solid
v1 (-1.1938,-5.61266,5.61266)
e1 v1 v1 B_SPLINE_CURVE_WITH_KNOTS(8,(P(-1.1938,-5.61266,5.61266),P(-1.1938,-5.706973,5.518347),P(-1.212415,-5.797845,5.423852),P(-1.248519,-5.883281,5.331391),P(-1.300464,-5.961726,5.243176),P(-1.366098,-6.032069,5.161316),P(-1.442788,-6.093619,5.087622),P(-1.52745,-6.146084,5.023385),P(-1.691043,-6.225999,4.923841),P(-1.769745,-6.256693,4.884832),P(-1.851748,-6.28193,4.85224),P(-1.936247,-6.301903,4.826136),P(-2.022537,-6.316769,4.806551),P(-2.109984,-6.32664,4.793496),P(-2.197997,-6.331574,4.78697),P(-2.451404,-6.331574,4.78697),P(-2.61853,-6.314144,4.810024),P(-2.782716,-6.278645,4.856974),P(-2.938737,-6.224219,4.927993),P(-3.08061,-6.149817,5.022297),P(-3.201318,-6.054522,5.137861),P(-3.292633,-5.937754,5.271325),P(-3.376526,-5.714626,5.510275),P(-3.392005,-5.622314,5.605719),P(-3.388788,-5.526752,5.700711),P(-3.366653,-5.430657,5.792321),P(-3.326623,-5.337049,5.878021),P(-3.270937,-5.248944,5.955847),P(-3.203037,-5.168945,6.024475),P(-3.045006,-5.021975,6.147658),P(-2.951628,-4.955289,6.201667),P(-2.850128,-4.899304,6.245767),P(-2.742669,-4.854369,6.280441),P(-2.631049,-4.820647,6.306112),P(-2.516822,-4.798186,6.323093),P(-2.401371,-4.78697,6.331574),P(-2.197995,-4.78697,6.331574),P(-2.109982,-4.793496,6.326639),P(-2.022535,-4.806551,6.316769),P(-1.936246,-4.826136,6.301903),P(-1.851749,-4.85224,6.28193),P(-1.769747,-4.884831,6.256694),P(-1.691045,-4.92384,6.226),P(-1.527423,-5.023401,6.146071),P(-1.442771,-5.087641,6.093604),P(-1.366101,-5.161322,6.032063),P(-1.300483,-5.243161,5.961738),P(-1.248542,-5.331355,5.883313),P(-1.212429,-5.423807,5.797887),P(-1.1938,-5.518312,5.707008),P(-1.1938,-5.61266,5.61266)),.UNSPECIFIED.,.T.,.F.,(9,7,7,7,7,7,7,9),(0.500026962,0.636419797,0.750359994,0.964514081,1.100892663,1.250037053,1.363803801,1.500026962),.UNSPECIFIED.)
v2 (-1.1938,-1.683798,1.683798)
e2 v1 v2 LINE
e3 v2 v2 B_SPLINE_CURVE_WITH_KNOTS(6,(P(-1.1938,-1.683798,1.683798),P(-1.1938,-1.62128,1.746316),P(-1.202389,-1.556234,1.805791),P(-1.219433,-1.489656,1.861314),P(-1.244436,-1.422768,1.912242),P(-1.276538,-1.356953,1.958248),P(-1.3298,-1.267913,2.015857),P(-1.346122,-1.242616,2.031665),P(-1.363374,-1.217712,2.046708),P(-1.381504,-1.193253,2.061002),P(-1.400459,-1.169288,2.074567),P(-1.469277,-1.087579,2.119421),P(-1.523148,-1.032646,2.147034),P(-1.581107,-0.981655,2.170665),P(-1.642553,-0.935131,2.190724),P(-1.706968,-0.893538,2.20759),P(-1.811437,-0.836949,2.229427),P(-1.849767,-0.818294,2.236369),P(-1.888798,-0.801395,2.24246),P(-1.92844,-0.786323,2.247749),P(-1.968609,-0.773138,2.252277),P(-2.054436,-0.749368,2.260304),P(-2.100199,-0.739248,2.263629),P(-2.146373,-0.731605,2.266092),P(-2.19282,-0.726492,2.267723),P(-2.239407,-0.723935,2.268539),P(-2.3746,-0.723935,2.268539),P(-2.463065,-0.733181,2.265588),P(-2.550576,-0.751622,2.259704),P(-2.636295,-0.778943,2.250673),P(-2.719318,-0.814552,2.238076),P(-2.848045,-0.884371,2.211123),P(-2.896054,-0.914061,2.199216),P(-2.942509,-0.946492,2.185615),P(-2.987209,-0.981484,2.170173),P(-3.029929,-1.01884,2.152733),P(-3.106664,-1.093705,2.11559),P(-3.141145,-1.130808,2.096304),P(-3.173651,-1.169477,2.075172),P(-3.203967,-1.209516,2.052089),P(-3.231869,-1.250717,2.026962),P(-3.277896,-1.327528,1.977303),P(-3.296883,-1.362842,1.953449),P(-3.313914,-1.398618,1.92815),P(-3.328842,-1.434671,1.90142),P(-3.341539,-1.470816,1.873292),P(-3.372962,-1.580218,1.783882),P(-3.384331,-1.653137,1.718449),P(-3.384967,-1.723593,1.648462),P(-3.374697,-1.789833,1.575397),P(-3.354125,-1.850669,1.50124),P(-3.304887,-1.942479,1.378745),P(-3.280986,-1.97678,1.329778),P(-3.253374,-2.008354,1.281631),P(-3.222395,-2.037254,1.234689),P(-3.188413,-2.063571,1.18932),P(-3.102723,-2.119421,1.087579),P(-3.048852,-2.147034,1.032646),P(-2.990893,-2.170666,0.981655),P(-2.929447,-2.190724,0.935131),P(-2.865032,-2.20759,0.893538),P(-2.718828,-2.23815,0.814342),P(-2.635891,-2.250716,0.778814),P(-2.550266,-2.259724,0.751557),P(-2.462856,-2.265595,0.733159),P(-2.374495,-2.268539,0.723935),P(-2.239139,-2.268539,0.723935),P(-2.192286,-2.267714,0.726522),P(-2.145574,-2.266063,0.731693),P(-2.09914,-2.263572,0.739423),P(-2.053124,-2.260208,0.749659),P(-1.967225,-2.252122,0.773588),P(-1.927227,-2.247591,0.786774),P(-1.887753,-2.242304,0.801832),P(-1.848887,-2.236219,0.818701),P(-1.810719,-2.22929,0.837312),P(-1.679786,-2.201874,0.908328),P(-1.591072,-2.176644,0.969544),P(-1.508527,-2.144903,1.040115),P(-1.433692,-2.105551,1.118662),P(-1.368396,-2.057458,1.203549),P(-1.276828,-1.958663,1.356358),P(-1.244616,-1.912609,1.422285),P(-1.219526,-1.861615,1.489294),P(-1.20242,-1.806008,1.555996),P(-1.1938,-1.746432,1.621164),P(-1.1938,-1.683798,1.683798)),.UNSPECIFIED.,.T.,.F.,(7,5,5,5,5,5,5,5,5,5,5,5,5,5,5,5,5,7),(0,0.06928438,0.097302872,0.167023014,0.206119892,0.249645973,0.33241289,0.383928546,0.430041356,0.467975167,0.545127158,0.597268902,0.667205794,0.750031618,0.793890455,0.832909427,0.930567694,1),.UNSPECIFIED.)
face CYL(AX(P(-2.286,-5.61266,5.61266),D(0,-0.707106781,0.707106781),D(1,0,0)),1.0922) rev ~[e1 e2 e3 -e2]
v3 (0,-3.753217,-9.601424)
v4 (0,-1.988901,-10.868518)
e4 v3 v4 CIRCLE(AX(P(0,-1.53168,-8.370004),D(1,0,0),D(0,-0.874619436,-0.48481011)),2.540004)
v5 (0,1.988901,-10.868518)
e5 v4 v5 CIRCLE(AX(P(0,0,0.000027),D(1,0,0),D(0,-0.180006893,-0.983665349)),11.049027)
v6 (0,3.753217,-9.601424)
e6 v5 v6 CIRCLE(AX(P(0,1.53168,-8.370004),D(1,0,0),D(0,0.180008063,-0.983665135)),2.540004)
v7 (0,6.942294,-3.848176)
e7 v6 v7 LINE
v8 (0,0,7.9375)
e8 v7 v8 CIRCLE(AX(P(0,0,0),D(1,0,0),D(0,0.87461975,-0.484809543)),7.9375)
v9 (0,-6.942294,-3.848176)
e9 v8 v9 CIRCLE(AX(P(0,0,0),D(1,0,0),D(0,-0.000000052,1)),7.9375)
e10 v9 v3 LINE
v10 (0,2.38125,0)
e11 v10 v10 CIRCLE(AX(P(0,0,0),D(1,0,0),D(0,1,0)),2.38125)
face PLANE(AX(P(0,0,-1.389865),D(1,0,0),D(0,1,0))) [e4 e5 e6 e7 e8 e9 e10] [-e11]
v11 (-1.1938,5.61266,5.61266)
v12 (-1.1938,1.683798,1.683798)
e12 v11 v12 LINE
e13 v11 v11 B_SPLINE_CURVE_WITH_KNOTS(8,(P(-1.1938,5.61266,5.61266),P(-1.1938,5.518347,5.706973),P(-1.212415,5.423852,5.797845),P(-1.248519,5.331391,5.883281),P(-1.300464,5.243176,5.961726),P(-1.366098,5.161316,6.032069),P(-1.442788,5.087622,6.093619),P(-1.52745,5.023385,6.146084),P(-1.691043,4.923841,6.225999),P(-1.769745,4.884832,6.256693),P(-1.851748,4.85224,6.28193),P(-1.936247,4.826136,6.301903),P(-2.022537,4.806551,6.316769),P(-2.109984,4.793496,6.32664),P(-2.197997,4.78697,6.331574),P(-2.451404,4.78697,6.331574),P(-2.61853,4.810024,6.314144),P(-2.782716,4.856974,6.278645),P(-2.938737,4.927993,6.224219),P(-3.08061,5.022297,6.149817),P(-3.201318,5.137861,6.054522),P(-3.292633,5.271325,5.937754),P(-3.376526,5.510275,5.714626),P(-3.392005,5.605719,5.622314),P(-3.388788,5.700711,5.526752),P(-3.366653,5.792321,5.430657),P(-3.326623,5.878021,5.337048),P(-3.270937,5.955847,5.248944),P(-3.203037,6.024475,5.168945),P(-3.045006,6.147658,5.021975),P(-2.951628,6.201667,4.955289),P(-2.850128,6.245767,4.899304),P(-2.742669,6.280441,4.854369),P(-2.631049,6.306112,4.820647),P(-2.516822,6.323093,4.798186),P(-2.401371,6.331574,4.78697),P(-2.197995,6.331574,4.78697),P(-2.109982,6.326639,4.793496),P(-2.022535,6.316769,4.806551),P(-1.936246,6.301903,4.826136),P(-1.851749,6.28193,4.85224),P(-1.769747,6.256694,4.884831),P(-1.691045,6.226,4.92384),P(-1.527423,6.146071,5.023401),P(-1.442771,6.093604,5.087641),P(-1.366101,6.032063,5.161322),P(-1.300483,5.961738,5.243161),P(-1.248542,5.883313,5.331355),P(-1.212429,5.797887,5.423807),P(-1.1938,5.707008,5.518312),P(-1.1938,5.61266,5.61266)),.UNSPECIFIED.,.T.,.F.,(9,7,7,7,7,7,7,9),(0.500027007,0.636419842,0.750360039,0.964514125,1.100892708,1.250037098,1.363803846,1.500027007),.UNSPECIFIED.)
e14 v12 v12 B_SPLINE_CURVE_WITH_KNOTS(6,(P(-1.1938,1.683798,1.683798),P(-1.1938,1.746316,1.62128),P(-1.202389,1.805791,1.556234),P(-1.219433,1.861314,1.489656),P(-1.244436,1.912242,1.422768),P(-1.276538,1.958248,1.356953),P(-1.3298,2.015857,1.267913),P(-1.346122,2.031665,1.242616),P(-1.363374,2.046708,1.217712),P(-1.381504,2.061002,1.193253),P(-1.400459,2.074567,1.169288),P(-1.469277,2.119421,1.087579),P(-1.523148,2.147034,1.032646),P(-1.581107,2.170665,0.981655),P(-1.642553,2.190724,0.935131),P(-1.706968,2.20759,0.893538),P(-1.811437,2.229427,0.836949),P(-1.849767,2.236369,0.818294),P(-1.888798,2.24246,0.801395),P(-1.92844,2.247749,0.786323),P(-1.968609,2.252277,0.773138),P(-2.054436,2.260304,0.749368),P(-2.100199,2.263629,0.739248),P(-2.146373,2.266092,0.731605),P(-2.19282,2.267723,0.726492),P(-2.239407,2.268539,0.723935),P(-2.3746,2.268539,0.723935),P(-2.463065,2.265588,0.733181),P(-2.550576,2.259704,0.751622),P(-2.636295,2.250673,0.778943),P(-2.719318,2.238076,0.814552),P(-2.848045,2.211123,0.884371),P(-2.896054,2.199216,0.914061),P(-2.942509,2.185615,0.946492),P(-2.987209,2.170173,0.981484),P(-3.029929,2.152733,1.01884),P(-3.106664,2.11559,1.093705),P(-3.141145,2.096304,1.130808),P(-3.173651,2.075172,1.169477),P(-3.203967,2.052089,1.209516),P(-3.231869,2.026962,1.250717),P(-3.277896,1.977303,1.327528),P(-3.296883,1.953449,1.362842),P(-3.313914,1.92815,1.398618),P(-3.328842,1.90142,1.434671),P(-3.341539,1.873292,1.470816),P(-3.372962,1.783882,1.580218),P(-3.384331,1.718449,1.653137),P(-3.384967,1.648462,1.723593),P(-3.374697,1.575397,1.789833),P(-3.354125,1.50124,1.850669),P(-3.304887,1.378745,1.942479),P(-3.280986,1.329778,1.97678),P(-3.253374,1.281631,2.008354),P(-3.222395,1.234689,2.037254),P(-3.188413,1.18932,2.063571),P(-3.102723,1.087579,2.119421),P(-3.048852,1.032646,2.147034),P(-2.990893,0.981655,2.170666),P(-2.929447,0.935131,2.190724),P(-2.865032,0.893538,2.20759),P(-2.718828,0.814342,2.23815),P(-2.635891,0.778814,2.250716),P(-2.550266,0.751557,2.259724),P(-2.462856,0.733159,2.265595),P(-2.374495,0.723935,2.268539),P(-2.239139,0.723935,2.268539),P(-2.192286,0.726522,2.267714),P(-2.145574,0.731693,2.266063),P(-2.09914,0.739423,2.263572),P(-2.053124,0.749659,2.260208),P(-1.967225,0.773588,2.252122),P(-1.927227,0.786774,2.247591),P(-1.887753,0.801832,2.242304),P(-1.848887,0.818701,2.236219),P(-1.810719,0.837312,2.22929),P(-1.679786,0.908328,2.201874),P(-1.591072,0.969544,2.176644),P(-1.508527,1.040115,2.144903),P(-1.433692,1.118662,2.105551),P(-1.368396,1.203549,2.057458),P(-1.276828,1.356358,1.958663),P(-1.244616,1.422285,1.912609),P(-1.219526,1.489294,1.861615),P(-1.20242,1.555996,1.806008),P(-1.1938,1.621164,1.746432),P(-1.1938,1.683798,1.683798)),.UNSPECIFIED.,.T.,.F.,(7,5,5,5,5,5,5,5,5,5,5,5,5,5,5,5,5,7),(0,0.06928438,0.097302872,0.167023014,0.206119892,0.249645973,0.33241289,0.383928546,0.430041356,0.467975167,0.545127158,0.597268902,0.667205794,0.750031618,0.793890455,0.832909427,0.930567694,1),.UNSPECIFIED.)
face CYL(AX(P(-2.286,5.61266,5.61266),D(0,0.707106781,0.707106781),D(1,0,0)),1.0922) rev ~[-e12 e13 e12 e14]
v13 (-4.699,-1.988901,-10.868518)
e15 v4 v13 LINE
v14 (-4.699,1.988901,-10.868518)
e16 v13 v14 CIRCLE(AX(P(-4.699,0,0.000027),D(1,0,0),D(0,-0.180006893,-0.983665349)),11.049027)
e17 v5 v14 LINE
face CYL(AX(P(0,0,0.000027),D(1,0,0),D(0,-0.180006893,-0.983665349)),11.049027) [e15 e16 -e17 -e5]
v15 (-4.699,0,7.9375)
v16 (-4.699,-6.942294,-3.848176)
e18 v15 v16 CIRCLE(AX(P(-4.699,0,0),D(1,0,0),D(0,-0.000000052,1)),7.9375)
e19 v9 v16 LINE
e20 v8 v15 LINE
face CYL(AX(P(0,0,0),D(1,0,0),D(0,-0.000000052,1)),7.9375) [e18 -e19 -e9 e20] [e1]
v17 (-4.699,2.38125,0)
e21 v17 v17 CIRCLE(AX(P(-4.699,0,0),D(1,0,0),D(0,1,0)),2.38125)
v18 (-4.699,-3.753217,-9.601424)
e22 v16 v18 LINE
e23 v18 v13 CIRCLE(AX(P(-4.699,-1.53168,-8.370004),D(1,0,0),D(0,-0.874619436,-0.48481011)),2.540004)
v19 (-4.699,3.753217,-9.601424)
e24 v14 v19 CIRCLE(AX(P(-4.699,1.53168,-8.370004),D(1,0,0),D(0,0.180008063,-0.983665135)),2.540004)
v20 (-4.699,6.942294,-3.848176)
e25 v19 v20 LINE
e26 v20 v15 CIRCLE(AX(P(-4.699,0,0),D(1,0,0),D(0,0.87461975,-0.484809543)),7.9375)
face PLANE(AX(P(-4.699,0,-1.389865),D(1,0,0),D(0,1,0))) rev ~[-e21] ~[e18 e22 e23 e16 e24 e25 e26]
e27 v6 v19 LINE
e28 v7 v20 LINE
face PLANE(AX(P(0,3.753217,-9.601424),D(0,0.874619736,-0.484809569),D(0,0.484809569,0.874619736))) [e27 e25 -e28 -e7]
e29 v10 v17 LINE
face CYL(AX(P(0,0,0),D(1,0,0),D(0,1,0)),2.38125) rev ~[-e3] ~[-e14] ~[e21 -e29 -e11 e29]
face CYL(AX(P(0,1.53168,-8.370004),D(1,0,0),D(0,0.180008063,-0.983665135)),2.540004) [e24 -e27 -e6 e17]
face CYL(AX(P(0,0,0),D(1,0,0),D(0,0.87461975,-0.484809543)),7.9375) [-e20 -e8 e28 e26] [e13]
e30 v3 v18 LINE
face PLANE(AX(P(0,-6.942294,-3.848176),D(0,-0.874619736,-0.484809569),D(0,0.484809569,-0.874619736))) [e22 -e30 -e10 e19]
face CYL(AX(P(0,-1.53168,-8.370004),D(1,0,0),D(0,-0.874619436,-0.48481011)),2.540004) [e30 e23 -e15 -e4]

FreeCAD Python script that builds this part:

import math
import FreeCAD as App
import Part
import Sketcher

V = App.Vector
Q = App.Units.Quantity

doc = App.newDocument("Part")
body = doc.addObject("PartDesign::Body", "Body")

# Sketch on YZ plane
sketch1 = body.newObject("Sketcher::SketchObject", "Sketch")
sketch1.AttachmentSupport = (doc.getObject("YZ_Plane"), [""])
sketch1.MapMode = "FlatFace"
sketch1.addGeometry(Part.ArcOfCircle(Part.Circle(V(-1.5, -8.4, 0), V(0, 0, 1), 2.5), math.radians(-151), math.radians(-100)), False)
sketch1.addGeometry(Part.ArcOfCircle(Part.Circle(V(0, 0, 0), V(0, 0, 1), 11), math.radians(-100), math.radians(-80)), False)
sketch1.addGeometry(Part.ArcOfCircle(Part.Circle(V(1.5, -8.4, 0), V(0, 0, 1), 2.5), math.radians(-80), math.radians(-29)), False)
sketch1.addGeometry(Part.LineSegment(V(3.8, -9.6, 0), V(6.9, -3.8, 0)), False)
sketch1.addGeometry(Part.ArcOfCircle(Part.Circle(V(0, 0, 0), V(0, 0, 1), 7.9), math.radians(-29), math.radians(90)), False)
sketch1.addGeometry(Part.ArcOfCircle(Part.Circle(V(0, 0, 0), V(0, 0, 1), 7.9), math.radians(90), math.radians(209)), False)
sketch1.addGeometry(Part.LineSegment(V(-6.9, -3.8, 0), V(-3.8, -9.6, 0)), False)
sketch1.addGeometry(Part.Circle(V(0, 0, 0), V(0, 0, 1), 2.4), False)
sketch1.addConstraint(Sketcher.Constraint("Tangent", 0, 2, 1, 1))
sketch1.addConstraint(Sketcher.Constraint("Tangent", 1, 2, 2, 1))
sketch1.addConstraint(Sketcher.Constraint("Tangent", 2, 2, 3, 1))
sketch1.addConstraint(Sketcher.Constraint("Tangent", 3, 2, 4, 1))
sketch1.addConstraint(Sketcher.Constraint("Tangent", 4, 2, 5, 1))
sketch1.addConstraint(Sketcher.Constraint("Tangent", 5, 2, 6, 1))
sketch1.addConstraint(Sketcher.Constraint("Tangent", 6, 2, 0, 1))
sketch1.addConstraint(Sketcher.Constraint("Coincident", 4, 3, -1, 1))
sketch1.addConstraint(Sketcher.Constraint("Coincident", 7, 3, -1, 1))
sketch1.addConstraint(Sketcher.Constraint("Equal", 0, 2))
sketch1.addConstraint(Sketcher.Constraint("Equal", 4, 5))
sketch1.addConstraint(Sketcher.Constraint("Symmetric", 0, 3, 2, 3, -2))
sketch1.addConstraint(Sketcher.Constraint("PointOnObject", 4, 2, -2))
sketch1.addConstraint(Sketcher.Constraint("Radius", 0, Q("0.1000002 in")))
sketch1.addConstraint(Sketcher.Constraint("Diameter", 7, Q("0.1875 in")))
sketch1.addConstraint(Sketcher.Constraint("Angle", 3, Q("61.000003 deg")))
sketch1.addConstraint(Sketcher.Constraint("Radius", 4, Q("0.3125 in")))
sketch1.addConstraint(Sketcher.Constraint("Radius", 1, Q("11.049027 mm")))
sketch1.addConstraint(Sketcher.Constraint("Distance", 3, Q("6.577999 mm")))
pad1 = body.newObject("PartDesign::Pad", "Pad")
pad1.Profile = sketch1
pad1.Length = Q("0.185 in")
pad1.Reversed = True

# Sketch on an angled plane
sketch2 = body.newObject("Sketcher::SketchObject", "Sketch001")
sketch2.Placement = App.Placement(V(0, -5.61266, 5.61266), App.Rotation(V(1, 0, 0), V(0, 0.707106781, 0.707106781), V(0, -0.707106781, 0.707106781), "ZXY"))
sketch2.addGeometry(Part.Circle(V(-2.3, 0, 0), V(0, 0, 1), 1.1), False)
sketch2.addConstraint(Sketcher.Constraint("PointOnObject", 0, 3, -1))
sketch2.addConstraint(Sketcher.Constraint("Diameter", 0, Q("0.086 in")))
sketch2.addConstraint(Sketcher.Constraint("DistanceX", 0, 3, -1, 1, Q("0.09 in")))
pocket1 = body.newObject("PartDesign::Pocket", "Pocket")
pocket1.Profile = sketch2
pocket1.Length = Q("0.3 in")

# Sketch on an angled plane
sketch3 = body.newObject("Sketcher::SketchObject", "Sketch002")
sketch3.Placement = App.Placement(V(0, 5.61266, 5.61266), App.Rotation(V(1, 0, 0), V(0, 0.707106781, -0.707106781), V(0, 0.707106781, 0.707106781), "ZXY"))
sketch3.addGeometry(Part.Circle(V(-2.3, 0, 0), V(0, 0, 1), 1.1), False)
sketch3.addConstraint(Sketcher.Constraint("PointOnObject", 0, 3, -1))
sketch3.addConstraint(Sketcher.Constraint("Diameter", 0, Q("0.086 in")))
sketch3.addConstraint(Sketcher.Constraint("DistanceX", 0, 3, -1, 1, Q("0.09 in")))
pocket2 = body.newObject("PartDesign::Pocket", "Pocket001")
pocket2.Profile = sketch3
pocket2.Length = Q("0.3 in")

doc.recompute()
